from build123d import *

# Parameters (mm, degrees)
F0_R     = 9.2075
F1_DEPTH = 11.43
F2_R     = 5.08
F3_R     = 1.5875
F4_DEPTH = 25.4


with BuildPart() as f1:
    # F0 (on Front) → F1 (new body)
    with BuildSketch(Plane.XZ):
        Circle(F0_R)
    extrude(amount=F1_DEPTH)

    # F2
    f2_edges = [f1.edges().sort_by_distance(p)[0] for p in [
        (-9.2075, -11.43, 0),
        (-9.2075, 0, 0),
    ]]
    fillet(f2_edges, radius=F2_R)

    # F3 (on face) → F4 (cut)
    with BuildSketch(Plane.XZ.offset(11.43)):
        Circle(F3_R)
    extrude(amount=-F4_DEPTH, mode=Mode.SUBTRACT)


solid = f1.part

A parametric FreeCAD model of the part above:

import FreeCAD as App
import Part
import Sketcher

V = App.Vector
Q = App.Units.Quantity


def edges_at(feature, points):
    """Names of the edges that pass closest to the given points."""
    edges = feature.Shape.Edges
    near = lambda p: min(range(len(edges)), key=lambda i: edges[i].distToShape(Part.Vertex(*p))[0])
    return sorted({f"Edge{near(p) + 1}" for p in points})

doc = App.newDocument("Part")
body = doc.addObject("PartDesign::Body", "Body")

# Sketch on XZ plane
sketch1 = body.newObject("Sketcher::SketchObject", "Sketch")
sketch1.AttachmentSupport = (doc.getObject("XZ_Plane"), [""])
sketch1.MapMode = "FlatFace"
sketch1.addGeometry(Part.Circle(V(0, 0, 0), V(0, 0, 1), 9), False)
sketch1.addConstraint([
    Sketcher.Constraint("Coincident", 0, 3, -1, 1),
    Sketcher.Constraint("Diameter", 0, Q("0.725 in")),
])
pad1 = body.newObject("PartDesign::Pad", "Pad")
pad1.Profile = sketch1
pad1.Length = Q("0.45 in")
doc.recompute()

fillet = body.newObject("PartDesign::Fillet", "Fillet")
fillet.Base = (pad1, edges_at(pad1, [(-9.207, -11.43, 0), (-9.207, 0, 0)]))
fillet.Radius = Q("0.2 in")

# Sketch on XZ plane
sketch2 = body.newObject("Sketcher::SketchObject", "Sketch001")
sketch2.AttachmentSupport = (doc.getObject("XZ_Plane"), [""])
sketch2.MapMode = "FlatFace"
sketch2.AttachmentOffset = App.Placement(V(0, 0, 0.45 * 25.4), App.Rotation())
sketch2.addGeometry(Part.Circle(V(0, 0, 0), V(0, 0, 1), 1.6), False)
sketch2.addConstraint([
    Sketcher.Constraint("Coincident", 0, 3, -1, 1),
    Sketcher.Constraint("Diameter", 0, Q("0.125 in")),
])
pocket1 = body.newObject("PartDesign::Pocket", "Pocket")
pocket1.Profile = sketch2
pocket1.Length = Q("1 in")

doc.recompute()
